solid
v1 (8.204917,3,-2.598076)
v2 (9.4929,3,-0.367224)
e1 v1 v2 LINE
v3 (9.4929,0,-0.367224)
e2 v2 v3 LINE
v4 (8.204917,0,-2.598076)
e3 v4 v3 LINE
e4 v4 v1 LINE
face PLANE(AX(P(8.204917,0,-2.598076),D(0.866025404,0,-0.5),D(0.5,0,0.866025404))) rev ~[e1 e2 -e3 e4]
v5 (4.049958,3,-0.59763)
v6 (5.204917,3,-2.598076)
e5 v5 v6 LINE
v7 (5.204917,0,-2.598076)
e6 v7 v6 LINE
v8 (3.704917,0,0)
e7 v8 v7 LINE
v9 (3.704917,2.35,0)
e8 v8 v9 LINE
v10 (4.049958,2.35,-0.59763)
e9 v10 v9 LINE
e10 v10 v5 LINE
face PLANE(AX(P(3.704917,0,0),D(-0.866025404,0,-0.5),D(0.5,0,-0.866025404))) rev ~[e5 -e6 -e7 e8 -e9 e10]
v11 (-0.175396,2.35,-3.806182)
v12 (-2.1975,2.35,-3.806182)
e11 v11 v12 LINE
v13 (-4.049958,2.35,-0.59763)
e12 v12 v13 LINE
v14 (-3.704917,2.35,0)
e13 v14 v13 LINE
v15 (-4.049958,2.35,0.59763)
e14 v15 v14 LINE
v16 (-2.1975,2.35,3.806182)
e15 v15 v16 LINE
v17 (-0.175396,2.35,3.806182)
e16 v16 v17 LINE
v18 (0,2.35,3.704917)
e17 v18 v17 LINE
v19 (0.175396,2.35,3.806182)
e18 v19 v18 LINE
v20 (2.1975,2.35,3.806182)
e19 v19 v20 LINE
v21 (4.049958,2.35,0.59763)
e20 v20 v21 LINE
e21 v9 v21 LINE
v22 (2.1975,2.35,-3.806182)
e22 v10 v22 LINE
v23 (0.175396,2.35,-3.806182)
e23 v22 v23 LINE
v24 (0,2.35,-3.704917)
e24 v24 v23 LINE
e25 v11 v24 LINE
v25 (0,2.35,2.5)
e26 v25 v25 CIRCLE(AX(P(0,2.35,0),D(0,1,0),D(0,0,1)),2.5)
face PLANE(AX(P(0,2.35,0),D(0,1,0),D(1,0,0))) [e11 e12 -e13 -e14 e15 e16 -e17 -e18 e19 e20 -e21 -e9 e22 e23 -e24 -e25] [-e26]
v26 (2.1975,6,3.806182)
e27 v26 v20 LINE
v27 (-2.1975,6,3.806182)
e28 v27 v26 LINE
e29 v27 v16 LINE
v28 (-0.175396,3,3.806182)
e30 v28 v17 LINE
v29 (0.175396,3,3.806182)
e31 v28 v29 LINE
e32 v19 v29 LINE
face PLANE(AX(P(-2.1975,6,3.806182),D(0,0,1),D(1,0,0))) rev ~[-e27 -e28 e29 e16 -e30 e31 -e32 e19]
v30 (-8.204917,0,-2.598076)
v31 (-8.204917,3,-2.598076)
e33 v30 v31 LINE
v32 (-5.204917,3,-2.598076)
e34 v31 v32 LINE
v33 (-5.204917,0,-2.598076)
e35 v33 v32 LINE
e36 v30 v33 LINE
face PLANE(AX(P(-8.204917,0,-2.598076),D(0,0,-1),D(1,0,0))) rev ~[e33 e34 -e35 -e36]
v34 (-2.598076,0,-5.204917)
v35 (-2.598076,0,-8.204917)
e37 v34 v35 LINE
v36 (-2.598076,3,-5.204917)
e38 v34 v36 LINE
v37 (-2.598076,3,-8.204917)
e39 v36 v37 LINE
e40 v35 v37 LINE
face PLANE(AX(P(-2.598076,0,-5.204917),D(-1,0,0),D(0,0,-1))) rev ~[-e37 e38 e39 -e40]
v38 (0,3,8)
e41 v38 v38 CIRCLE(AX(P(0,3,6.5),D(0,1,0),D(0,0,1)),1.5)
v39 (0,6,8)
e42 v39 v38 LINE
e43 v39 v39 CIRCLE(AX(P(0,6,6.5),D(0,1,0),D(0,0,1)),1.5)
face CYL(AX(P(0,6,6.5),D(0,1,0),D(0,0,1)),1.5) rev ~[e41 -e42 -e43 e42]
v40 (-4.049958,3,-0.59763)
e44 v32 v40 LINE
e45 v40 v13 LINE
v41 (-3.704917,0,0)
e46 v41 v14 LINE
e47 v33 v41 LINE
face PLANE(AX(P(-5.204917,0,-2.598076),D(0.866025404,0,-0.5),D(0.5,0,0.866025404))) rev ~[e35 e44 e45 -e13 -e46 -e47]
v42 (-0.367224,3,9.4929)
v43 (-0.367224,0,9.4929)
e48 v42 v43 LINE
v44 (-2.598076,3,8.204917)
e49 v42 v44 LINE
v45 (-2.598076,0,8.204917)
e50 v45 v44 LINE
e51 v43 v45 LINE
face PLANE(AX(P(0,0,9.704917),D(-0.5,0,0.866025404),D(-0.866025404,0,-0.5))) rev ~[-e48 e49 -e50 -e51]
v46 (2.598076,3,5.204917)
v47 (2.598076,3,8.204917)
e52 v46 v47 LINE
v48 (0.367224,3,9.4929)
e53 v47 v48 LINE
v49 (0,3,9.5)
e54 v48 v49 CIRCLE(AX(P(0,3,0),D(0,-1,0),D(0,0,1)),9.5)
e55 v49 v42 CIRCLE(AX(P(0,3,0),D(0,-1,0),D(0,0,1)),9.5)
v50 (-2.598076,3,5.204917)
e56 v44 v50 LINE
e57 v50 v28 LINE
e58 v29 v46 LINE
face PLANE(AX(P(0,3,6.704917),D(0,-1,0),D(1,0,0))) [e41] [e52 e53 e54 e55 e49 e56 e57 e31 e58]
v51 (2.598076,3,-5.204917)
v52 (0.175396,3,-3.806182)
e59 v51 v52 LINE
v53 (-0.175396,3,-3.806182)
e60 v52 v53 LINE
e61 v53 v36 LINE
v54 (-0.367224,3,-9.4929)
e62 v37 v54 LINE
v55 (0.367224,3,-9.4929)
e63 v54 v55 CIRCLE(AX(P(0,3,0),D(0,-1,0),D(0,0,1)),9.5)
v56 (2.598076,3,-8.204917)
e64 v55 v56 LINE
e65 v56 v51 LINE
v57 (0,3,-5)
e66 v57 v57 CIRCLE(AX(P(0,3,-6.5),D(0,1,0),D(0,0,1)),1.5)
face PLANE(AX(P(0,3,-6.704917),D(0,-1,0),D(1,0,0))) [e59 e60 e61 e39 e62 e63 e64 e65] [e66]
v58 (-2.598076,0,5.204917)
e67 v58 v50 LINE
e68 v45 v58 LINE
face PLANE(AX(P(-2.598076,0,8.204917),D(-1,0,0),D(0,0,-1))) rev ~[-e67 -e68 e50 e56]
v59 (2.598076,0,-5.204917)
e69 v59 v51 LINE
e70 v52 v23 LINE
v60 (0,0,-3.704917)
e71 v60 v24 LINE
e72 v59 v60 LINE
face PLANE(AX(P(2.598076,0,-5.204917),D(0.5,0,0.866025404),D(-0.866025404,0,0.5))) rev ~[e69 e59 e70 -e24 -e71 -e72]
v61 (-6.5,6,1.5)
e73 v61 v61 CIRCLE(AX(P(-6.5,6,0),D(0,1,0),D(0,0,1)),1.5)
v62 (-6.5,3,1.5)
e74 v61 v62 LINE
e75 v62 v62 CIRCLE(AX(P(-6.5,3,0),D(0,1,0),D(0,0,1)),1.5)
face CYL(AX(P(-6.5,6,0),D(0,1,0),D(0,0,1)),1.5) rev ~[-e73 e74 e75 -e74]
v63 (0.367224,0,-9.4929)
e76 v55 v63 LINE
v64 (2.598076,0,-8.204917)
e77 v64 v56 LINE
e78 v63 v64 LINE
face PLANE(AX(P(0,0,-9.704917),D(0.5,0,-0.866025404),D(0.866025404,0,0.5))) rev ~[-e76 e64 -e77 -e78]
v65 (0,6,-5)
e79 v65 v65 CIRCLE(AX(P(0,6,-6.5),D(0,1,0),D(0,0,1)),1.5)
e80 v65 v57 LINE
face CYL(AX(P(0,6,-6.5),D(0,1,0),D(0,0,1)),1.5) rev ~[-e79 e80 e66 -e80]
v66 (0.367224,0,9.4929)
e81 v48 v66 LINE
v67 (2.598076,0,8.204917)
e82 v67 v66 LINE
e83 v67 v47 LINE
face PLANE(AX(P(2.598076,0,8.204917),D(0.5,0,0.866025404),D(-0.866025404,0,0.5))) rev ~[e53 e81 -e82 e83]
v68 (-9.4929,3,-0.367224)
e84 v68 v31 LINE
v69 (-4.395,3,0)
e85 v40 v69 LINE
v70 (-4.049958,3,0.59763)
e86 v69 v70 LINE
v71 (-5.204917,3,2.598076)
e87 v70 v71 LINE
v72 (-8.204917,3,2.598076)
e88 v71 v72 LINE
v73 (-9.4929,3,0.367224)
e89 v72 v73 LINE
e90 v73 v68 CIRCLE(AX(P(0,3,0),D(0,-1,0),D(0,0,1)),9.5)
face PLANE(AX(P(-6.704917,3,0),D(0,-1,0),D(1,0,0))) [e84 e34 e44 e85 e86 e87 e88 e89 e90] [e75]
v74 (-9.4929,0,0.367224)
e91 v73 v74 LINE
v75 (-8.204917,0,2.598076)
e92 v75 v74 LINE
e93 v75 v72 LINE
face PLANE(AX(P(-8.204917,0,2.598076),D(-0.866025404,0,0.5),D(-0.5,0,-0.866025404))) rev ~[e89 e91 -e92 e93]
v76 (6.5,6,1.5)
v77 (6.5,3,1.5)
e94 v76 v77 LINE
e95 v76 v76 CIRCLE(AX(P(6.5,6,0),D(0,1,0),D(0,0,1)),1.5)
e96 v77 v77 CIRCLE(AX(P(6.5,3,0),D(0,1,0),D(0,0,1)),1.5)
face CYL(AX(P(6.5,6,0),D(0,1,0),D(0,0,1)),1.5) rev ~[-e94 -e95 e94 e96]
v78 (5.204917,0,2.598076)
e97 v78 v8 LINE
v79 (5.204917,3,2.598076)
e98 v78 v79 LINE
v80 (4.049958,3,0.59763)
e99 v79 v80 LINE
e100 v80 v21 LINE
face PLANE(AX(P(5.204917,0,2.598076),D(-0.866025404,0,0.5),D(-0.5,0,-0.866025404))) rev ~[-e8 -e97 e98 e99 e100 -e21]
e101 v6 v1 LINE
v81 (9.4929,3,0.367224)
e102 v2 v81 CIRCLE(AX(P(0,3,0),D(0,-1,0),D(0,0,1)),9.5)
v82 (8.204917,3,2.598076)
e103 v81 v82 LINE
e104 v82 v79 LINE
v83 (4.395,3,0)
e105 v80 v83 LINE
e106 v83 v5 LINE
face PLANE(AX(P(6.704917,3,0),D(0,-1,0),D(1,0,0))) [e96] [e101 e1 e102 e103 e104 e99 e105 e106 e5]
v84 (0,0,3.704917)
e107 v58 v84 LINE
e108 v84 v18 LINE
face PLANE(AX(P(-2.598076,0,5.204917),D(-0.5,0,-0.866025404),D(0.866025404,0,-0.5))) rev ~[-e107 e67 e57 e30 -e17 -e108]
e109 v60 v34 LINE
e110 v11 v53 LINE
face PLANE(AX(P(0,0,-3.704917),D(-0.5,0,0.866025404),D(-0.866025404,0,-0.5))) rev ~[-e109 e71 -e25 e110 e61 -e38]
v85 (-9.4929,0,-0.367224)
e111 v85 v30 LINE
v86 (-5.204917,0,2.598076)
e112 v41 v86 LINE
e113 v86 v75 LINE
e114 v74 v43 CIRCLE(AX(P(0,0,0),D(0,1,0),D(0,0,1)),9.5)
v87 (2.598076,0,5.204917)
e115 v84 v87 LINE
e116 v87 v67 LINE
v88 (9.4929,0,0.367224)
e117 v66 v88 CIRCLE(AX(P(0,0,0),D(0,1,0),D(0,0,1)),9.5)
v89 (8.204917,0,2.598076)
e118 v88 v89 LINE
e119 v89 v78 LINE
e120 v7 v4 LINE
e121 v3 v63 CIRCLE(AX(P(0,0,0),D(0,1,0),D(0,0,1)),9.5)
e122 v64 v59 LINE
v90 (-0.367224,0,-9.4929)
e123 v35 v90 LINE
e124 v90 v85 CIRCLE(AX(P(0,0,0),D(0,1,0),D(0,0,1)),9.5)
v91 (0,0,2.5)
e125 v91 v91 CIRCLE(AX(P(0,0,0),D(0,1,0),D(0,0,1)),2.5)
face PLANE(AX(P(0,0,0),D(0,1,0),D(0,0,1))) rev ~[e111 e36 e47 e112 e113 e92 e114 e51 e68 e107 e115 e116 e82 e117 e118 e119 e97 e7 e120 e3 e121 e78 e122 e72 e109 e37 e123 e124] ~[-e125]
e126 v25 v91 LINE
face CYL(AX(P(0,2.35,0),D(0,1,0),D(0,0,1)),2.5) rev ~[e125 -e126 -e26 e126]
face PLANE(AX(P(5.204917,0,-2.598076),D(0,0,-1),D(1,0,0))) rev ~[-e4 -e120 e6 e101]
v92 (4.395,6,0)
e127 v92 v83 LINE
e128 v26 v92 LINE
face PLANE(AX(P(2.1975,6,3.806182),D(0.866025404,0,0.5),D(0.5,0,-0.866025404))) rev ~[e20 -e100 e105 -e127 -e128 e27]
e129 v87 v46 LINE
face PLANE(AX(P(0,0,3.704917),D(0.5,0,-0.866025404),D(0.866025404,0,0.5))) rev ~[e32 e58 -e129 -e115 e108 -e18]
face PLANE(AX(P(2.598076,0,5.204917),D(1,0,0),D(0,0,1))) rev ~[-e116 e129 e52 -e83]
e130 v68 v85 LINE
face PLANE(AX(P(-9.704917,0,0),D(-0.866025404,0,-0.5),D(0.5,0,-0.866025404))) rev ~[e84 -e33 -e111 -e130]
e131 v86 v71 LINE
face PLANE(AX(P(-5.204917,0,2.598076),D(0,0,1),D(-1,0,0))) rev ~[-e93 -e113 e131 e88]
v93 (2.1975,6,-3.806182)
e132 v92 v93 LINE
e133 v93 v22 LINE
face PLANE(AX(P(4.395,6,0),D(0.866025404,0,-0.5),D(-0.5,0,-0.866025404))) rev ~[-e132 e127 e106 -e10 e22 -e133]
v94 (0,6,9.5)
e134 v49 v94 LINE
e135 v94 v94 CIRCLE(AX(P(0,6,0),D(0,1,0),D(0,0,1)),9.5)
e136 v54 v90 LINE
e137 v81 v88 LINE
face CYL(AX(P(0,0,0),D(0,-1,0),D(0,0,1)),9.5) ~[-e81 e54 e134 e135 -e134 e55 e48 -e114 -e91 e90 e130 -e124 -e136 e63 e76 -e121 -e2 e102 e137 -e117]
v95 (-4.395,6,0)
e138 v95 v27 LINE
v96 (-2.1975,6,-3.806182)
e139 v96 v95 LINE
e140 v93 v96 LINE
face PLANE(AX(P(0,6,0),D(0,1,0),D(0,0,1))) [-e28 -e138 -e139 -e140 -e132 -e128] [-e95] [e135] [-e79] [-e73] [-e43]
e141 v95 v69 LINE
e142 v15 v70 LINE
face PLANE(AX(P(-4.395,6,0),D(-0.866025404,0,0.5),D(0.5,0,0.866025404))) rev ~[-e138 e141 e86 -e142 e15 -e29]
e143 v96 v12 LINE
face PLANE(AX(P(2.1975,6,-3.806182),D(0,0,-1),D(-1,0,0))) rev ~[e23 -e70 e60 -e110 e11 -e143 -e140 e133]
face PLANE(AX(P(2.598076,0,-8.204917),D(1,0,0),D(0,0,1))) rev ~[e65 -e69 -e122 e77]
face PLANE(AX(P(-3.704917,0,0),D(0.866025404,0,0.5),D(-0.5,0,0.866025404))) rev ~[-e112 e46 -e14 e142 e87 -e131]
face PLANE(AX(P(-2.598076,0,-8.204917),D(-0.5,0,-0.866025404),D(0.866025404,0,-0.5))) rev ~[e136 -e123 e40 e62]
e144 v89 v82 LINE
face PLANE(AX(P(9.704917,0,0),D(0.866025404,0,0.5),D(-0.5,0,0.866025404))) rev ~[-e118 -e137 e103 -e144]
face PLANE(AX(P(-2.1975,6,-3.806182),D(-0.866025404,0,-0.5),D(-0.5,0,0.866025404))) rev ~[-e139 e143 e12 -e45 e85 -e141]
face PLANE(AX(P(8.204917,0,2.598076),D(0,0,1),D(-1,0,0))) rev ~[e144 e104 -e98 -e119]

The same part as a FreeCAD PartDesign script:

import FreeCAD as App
import Part
import Sketcher

V = App.Vector
Q = App.Units.Quantity

doc = App.newDocument("Part")
body = doc.addObject("PartDesign::Body", "Body")

# Sketch on XZ plane
sketch1 = body.newObject("Sketcher::SketchObject", "Sketch")
sketch1.AttachmentSupport = (doc.getObject("XZ_Plane"), [""])
sketch1.MapMode = "FlatFace"
sketch1.addGeometry(Part.Circle(V(0, 0, 0), V(0, 0, 1), 9.5), False)
sketch1.addConstraint([
    Sketcher.Constraint("Coincident", 0, 3, -1, 1),
    Sketcher.Constraint("Diameter", 0, 19.0),
])
pad1 = body.newObject("PartDesign::Pad", "Pad")
pad1.Profile = sketch1
pad1.Length = 6
pad1.Reversed = True

# Sketch on XZ plane
sketch2 = body.newObject("Sketcher::SketchObject", "Sketch001")
sketch2.AttachmentSupport = (doc.getObject("XZ_Plane"), [""])
sketch2.MapMode = "FlatFace"
sketch2.AttachmentOffset = App.Placement(V(0, 0, -6), App.Rotation())
sketch2.addGeometry([
    Part.LineSegment(V(2.1975, 3.806182, 0), V(4.395, 0, 0)),  # 0
    Part.LineSegment(V(4.395, 0, 0), V(2.1975, -3.806182, 0)),  # 1
    Part.LineSegment(V(2.1975, -3.806182, 0), V(-2.1975, -3.806182, 0)),  # 2
    Part.LineSegment(V(-2.1975, -3.806182, 0), V(-4.395, 0, 0)),  # 3
    Part.LineSegment(V(-4.395, 0, 0), V(-2.1975, 3.806182, 0)),  # 4
    Part.LineSegment(V(-2.1975, 3.806182, 0), V(2.1975, 3.806182, 0)),  # 5
], False)
sketch2.addConstraint([
    Sketcher.Constraint("Coincident", 0, 2, 1, 1),
    Sketcher.Constraint("Coincident", 1, 2, 2, 1),
    Sketcher.Constraint("Coincident", 2, 2, 3, 1),
    Sketcher.Constraint("Coincident", 3, 2, 4, 1),
    Sketcher.Constraint("Coincident", 4, 2, 5, 1),
    Sketcher.Constraint("Coincident", 5, 2, 0, 1),
    Sketcher.Constraint("Horizontal", 2),
    Sketcher.Constraint("Horizontal", 5),
    Sketcher.Constraint("Symmetric", 0, 2, 3, 2, -1, 1),
    Sketcher.Constraint("Symmetric", 1, 2, 4, 2, -1, 1),
    Sketcher.Constraint("PointOnObject", 0, 2, -1),
    Sketcher.Constraint("Parallel", 0, 3),
    Sketcher.Constraint("Vertical", 2, 2, 4, 2),
    Sketcher.Constraint("Angle", 0, Q("-60 deg")),
    Sketcher.Constraint("DistanceX", 2, 2, 2, 1, 4.395),
    Sketcher.Constraint("DistanceX", 3, 2, 0, 2, 8.79),
])
pocket1 = body.newObject("PartDesign::Pocket", "Pocket")
pocket1.Profile = sketch2
pocket1.Length = 3.65
pocket1.Reversed = True

# Sketch on XZ plane
sketch3 = body.newObject("Sketcher::SketchObject", "Sketch002")
sketch3.AttachmentSupport = (doc.getObject("XZ_Plane"), [""])
sketch3.MapMode = "FlatFace"
sketch3.AttachmentOffset = App.Placement(V(0, 0, -2.35), App.Rotation())
sketch3.addGeometry(Part.Circle(V(0, 0, 0), V(0, 0, 1), 2.5), False)
sketch3.addConstraint([
    Sketcher.Constraint("Coincident", 0, 3, -1, 1),
    Sketcher.Constraint("Diameter", 0, 5.0),
])
pocket2 = body.newObject("PartDesign::Pocket", "Pocket001")
pocket2.Profile = sketch3
pocket2.Type = "ThroughAll"
pocket2.Reversed = True

# Sketch on XZ plane
sketch4 = body.newObject("Sketcher::SketchObject", "Sketch003")
sketch4.AttachmentSupport = (doc.getObject("XZ_Plane"), [""])
sketch4.MapMode = "FlatFace"
sketch4.addGeometry([
    Part.LineSegment(V(-2.598076, -8.204917, 0), V(0, -9.704917, 0)),  # 0
    Part.LineSegment(V(0, -9.704917, 0), V(2.598076, -8.204917, 0)),  # 1
    Part.LineSegment(V(2.598076, -8.204917, 0), V(2.598076, -5.204917, 0)),  # 2
    Part.LineSegment(V(2.598076, -5.204917, 0), V(0, -3.704917, 0)),  # 3
    Part.LineSegment(V(0, -3.704917, 0), V(-2.598076, -5.204917, 0)),  # 4
    Part.LineSegment(V(-2.598076, -5.204917, 0), V(-2.598076, -8.204917, 0)),  # 5
    Part.LineSegment(V(8.204917, -2.598076, 0), V(9.704917, 0, 0)),  # 6
    Part.LineSegment(V(9.704917, 0, 0), V(8.204917, 2.598076, 0)),  # 7
    Part.LineSegment(V(8.204917, 2.598076, 0), V(5.204917, 2.598076, 0)),  # 8
    Part.LineSegment(V(5.204917, 2.598076, 0), V(3.704917, 0, 0)),  # 9
    Part.LineSegment(V(3.704917, 0, 0), V(5.204917, -2.598076, 0)),  # 10
    Part.LineSegment(V(5.204917, -2.598076, 0), V(8.204917, -2.598076, 0)),  # 11
    Part.LineSegment(V(-8.204917, 2.598076, 0), V(-9.704917, 0, 0)),  # 12
    Part.LineSegment(V(-9.704917, 0, 0), V(-8.204917, -2.598076, 0)),  # 13
    Part.LineSegment(V(-8.204917, -2.598076, 0), V(-5.204917, -2.598076, 0)),  # 14
    Part.LineSegment(V(-5.204917, -2.598076, 0), V(-3.704917, 0, 0)),  # 15
    Part.LineSegment(V(-3.704917, 0, 0), V(-5.204917, 2.598076, 0)),  # 16
    Part.LineSegment(V(-5.204917, 2.598076, 0), V(-8.204917, 2.598076, 0)),  # 17
    Part.LineSegment(V(2.598076, 8.204917, 0), V(0, 9.704917, 0)),  # 18
    Part.LineSegment(V(0, 9.704917, 0), V(-2.598076, 8.204917, 0)),  # 19
    Part.LineSegment(V(-2.598076, 8.204917, 0), V(-2.598076, 5.204917, 0)),  # 20
    Part.LineSegment(V(-2.598076, 5.204917, 0), V(0, 3.704917, 0)),  # 21
    Part.LineSegment(V(0, 3.704917, 0), V(2.598076, 5.204917, 0)),  # 22
    Part.LineSegment(V(2.598076, 5.204917, 0), V(2.598076, 8.204917, 0)),  # 23
], False)
sketch4.addConstraint([
    Sketcher.Constraint("Coincident", 0, 2, 1, 1),
    Sketcher.Constraint("Coincident", 1, 2, 2, 1),
    Sketcher.Constraint("Coincident", 2, 2, 3, 1),
    Sketcher.Constraint("Coincident", 3, 2, 4, 1),
    Sketcher.Constraint("Coincident", 4, 2, 5, 1),
    Sketcher.Constraint("Coincident", 5, 2, 0, 1),
    Sketcher.Constraint("Coincident", 6, 2, 7, 1),
    Sketcher.Constraint("Coincident", 7, 2, 8, 1),
    Sketcher.Constraint("Coincident", 8, 2, 9, 1),
    Sketcher.Constraint("Coincident", 9, 2, 10, 1),
    Sketcher.Constraint("Coincident", 10, 2, 11, 1),
    Sketcher.Constraint("Coincident", 11, 2, 6, 1),
    Sketcher.Constraint("Coincident", 12, 2, 13, 1),
    Sketcher.Constraint("Coincident", 13, 2, 14, 1),
    Sketcher.Constraint("Coincident", 14, 2, 15, 1),
    Sketcher.Constraint("Coincident", 15, 2, 16, 1),
    Sketcher.Constraint("Coincident", 16, 2, 17, 1),
    Sketcher.Constraint("Coincident", 17, 2, 12, 1),
    Sketcher.Constraint("Coincident", 18, 2, 19, 1),
    Sketcher.Constraint("Coincident", 19, 2, 20, 1),
    Sketcher.Constraint("Coincident", 20, 2, 21, 1),
    Sketcher.Constraint("Coincident", 21, 2, 22, 1),
    Sketcher.Constraint("Coincident", 22, 2, 23, 1),
    Sketcher.Constraint("Coincident", 23, 2, 18, 1),
    Sketcher.Constraint("Vertical", 2),
    Sketcher.Constraint("Vertical", 5),
    Sketcher.Constraint("Horizontal", 8),
    Sketcher.Constraint("Horizontal", 11),
    Sketcher.Constraint("Horizontal", 14),
    Sketcher.Constraint("Horizontal", 17),
    Sketcher.Constraint("Vertical", 20),
    Sketcher.Constraint("Vertical", 23),
    Sketcher.Constraint("Symmetric", 6, 2, 12, 2, -1, 1),
    Sketcher.Constraint("Symmetric", 7, 2, 13, 2, -1, 1),
    Sketcher.Constraint("Symmetric", 9, 2, 15, 2, -1, 1),
    Sketcher.Constraint("Symmetric", 10, 2, 16, 2, -1, 1),
    Sketcher.Constraint("Symmetric", 0, 2, 18, 2, -1, 1),
    Sketcher.Constraint("Symmetric", 1, 2, 19, 2, -1, 1),
    Sketcher.Constraint("Symmetric", 3, 2, 21, 2, -1, 1),
    Sketcher.Constraint("Symmetric", 4, 2, 22, 2, -1, 1),
    Sketcher.Constraint("Symmetric", 2, 2, 4, 2, -2),
    Sketcher.Constraint("Symmetric", 11, 2, 13, 2, -2),
    Sketcher.Constraint("PointOnObject", 0, 2, -2),
    Sketcher.Constraint("PointOnObject", 3, 2, -2),
    Sketcher.Constraint("PointOnObject", 6, 2, -1),
    Sketcher.Constraint("PointOnObject", 9, 2, -1),
    Sketcher.Constraint("Parallel", 0, 3),
    Sketcher.Constraint("Parallel", 1, 4),
    Sketcher.Constraint("Perpendicular", 3, 6),
    Sketcher.Constraint("Parallel", 6, 9),
    Sketcher.Constraint("Parallel", 7, 10),
    Sketcher.Constraint("Parallel", 9, 12),
    Sketcher.Constraint("Parallel", 12, 15),
    Sketcher.Constraint("Perpendicular", 15, 18),
    Sketcher.Constraint("Parallel", 18, 21),
    Sketcher.Constraint("Equal", 17, 2),
    Sketcher.Constraint("Equal", 4, 6),
    Sketcher.Constraint("DistanceX", 8, 2, 8, 1, 3.0),
    Sketcher.Constraint("Angle", 0, Q("-30 deg")),
    Sketcher.Constraint("Distance", 0, 3.0),
    Sketcher.Constraint("DistanceX", 2, 2, 6, 2, 7.10684),
    Sketcher.Constraint("DistanceY", 2, 2, 10, 2, 2.60684),
])
pocket3 = body.newObject("PartDesign::Pocket", "Pocket002")
pocket3.Profile = sketch4
pocket3.Length = 3

# Sketch on XZ plane
sketch5 = body.newObject("Sketcher::SketchObject", "Sketch004")
sketch5.AttachmentSupport = (doc.getObject("XZ_Plane"), [""])
sketch5.MapMode = "FlatFace"
sketch5.AttachmentOffset = App.Placement(V(0, 0, -6), App.Rotation())
sketch5.addGeometry([
    Part.Circle(V(6.5, 0, 0), V(0, 0, 1), 1.5),
    Part.Circle(V(0, 6.5, 0), V(0, 0, 1), 1.5),
    Part.Circle(V(-6.5, 0, 0), V(0, 0, 1), 1.5),
    Part.Circle(V(0, -6.5, 0), V(0, 0, 1), 1.5),
], False)
sketch5.addConstraint([
    Sketcher.Constraint("Equal", 0, 1),
    Sketcher.Constraint("Equal", 1, 2),
    Sketcher.Constraint("Equal", 2, 3),
    Sketcher.Constraint("Symmetric", 0, 3, 2, 3, -1, 1),
    Sketcher.Constraint("Symmetric", 1, 3, 3, 3, -1, 1),
    Sketcher.Constraint("PointOnObject", 0, 3, -1),
    Sketcher.Constraint("PointOnObject", 1, 3, -2),
    Sketcher.Constraint("Diameter", 0, 3.0),
    Sketcher.Constraint("DistanceX", 2, 3, 0, 3, 13.0),
    Sketcher.Constraint("DistanceY", 3, 3, 1, 3, 13.0),
])
pocket4 = body.newObject("PartDesign::Pocket", "Pocket003")
pocket4.Profile = sketch5
pocket4.Type = "ThroughAll"
pocket4.Reversed = True

doc.recompute()
